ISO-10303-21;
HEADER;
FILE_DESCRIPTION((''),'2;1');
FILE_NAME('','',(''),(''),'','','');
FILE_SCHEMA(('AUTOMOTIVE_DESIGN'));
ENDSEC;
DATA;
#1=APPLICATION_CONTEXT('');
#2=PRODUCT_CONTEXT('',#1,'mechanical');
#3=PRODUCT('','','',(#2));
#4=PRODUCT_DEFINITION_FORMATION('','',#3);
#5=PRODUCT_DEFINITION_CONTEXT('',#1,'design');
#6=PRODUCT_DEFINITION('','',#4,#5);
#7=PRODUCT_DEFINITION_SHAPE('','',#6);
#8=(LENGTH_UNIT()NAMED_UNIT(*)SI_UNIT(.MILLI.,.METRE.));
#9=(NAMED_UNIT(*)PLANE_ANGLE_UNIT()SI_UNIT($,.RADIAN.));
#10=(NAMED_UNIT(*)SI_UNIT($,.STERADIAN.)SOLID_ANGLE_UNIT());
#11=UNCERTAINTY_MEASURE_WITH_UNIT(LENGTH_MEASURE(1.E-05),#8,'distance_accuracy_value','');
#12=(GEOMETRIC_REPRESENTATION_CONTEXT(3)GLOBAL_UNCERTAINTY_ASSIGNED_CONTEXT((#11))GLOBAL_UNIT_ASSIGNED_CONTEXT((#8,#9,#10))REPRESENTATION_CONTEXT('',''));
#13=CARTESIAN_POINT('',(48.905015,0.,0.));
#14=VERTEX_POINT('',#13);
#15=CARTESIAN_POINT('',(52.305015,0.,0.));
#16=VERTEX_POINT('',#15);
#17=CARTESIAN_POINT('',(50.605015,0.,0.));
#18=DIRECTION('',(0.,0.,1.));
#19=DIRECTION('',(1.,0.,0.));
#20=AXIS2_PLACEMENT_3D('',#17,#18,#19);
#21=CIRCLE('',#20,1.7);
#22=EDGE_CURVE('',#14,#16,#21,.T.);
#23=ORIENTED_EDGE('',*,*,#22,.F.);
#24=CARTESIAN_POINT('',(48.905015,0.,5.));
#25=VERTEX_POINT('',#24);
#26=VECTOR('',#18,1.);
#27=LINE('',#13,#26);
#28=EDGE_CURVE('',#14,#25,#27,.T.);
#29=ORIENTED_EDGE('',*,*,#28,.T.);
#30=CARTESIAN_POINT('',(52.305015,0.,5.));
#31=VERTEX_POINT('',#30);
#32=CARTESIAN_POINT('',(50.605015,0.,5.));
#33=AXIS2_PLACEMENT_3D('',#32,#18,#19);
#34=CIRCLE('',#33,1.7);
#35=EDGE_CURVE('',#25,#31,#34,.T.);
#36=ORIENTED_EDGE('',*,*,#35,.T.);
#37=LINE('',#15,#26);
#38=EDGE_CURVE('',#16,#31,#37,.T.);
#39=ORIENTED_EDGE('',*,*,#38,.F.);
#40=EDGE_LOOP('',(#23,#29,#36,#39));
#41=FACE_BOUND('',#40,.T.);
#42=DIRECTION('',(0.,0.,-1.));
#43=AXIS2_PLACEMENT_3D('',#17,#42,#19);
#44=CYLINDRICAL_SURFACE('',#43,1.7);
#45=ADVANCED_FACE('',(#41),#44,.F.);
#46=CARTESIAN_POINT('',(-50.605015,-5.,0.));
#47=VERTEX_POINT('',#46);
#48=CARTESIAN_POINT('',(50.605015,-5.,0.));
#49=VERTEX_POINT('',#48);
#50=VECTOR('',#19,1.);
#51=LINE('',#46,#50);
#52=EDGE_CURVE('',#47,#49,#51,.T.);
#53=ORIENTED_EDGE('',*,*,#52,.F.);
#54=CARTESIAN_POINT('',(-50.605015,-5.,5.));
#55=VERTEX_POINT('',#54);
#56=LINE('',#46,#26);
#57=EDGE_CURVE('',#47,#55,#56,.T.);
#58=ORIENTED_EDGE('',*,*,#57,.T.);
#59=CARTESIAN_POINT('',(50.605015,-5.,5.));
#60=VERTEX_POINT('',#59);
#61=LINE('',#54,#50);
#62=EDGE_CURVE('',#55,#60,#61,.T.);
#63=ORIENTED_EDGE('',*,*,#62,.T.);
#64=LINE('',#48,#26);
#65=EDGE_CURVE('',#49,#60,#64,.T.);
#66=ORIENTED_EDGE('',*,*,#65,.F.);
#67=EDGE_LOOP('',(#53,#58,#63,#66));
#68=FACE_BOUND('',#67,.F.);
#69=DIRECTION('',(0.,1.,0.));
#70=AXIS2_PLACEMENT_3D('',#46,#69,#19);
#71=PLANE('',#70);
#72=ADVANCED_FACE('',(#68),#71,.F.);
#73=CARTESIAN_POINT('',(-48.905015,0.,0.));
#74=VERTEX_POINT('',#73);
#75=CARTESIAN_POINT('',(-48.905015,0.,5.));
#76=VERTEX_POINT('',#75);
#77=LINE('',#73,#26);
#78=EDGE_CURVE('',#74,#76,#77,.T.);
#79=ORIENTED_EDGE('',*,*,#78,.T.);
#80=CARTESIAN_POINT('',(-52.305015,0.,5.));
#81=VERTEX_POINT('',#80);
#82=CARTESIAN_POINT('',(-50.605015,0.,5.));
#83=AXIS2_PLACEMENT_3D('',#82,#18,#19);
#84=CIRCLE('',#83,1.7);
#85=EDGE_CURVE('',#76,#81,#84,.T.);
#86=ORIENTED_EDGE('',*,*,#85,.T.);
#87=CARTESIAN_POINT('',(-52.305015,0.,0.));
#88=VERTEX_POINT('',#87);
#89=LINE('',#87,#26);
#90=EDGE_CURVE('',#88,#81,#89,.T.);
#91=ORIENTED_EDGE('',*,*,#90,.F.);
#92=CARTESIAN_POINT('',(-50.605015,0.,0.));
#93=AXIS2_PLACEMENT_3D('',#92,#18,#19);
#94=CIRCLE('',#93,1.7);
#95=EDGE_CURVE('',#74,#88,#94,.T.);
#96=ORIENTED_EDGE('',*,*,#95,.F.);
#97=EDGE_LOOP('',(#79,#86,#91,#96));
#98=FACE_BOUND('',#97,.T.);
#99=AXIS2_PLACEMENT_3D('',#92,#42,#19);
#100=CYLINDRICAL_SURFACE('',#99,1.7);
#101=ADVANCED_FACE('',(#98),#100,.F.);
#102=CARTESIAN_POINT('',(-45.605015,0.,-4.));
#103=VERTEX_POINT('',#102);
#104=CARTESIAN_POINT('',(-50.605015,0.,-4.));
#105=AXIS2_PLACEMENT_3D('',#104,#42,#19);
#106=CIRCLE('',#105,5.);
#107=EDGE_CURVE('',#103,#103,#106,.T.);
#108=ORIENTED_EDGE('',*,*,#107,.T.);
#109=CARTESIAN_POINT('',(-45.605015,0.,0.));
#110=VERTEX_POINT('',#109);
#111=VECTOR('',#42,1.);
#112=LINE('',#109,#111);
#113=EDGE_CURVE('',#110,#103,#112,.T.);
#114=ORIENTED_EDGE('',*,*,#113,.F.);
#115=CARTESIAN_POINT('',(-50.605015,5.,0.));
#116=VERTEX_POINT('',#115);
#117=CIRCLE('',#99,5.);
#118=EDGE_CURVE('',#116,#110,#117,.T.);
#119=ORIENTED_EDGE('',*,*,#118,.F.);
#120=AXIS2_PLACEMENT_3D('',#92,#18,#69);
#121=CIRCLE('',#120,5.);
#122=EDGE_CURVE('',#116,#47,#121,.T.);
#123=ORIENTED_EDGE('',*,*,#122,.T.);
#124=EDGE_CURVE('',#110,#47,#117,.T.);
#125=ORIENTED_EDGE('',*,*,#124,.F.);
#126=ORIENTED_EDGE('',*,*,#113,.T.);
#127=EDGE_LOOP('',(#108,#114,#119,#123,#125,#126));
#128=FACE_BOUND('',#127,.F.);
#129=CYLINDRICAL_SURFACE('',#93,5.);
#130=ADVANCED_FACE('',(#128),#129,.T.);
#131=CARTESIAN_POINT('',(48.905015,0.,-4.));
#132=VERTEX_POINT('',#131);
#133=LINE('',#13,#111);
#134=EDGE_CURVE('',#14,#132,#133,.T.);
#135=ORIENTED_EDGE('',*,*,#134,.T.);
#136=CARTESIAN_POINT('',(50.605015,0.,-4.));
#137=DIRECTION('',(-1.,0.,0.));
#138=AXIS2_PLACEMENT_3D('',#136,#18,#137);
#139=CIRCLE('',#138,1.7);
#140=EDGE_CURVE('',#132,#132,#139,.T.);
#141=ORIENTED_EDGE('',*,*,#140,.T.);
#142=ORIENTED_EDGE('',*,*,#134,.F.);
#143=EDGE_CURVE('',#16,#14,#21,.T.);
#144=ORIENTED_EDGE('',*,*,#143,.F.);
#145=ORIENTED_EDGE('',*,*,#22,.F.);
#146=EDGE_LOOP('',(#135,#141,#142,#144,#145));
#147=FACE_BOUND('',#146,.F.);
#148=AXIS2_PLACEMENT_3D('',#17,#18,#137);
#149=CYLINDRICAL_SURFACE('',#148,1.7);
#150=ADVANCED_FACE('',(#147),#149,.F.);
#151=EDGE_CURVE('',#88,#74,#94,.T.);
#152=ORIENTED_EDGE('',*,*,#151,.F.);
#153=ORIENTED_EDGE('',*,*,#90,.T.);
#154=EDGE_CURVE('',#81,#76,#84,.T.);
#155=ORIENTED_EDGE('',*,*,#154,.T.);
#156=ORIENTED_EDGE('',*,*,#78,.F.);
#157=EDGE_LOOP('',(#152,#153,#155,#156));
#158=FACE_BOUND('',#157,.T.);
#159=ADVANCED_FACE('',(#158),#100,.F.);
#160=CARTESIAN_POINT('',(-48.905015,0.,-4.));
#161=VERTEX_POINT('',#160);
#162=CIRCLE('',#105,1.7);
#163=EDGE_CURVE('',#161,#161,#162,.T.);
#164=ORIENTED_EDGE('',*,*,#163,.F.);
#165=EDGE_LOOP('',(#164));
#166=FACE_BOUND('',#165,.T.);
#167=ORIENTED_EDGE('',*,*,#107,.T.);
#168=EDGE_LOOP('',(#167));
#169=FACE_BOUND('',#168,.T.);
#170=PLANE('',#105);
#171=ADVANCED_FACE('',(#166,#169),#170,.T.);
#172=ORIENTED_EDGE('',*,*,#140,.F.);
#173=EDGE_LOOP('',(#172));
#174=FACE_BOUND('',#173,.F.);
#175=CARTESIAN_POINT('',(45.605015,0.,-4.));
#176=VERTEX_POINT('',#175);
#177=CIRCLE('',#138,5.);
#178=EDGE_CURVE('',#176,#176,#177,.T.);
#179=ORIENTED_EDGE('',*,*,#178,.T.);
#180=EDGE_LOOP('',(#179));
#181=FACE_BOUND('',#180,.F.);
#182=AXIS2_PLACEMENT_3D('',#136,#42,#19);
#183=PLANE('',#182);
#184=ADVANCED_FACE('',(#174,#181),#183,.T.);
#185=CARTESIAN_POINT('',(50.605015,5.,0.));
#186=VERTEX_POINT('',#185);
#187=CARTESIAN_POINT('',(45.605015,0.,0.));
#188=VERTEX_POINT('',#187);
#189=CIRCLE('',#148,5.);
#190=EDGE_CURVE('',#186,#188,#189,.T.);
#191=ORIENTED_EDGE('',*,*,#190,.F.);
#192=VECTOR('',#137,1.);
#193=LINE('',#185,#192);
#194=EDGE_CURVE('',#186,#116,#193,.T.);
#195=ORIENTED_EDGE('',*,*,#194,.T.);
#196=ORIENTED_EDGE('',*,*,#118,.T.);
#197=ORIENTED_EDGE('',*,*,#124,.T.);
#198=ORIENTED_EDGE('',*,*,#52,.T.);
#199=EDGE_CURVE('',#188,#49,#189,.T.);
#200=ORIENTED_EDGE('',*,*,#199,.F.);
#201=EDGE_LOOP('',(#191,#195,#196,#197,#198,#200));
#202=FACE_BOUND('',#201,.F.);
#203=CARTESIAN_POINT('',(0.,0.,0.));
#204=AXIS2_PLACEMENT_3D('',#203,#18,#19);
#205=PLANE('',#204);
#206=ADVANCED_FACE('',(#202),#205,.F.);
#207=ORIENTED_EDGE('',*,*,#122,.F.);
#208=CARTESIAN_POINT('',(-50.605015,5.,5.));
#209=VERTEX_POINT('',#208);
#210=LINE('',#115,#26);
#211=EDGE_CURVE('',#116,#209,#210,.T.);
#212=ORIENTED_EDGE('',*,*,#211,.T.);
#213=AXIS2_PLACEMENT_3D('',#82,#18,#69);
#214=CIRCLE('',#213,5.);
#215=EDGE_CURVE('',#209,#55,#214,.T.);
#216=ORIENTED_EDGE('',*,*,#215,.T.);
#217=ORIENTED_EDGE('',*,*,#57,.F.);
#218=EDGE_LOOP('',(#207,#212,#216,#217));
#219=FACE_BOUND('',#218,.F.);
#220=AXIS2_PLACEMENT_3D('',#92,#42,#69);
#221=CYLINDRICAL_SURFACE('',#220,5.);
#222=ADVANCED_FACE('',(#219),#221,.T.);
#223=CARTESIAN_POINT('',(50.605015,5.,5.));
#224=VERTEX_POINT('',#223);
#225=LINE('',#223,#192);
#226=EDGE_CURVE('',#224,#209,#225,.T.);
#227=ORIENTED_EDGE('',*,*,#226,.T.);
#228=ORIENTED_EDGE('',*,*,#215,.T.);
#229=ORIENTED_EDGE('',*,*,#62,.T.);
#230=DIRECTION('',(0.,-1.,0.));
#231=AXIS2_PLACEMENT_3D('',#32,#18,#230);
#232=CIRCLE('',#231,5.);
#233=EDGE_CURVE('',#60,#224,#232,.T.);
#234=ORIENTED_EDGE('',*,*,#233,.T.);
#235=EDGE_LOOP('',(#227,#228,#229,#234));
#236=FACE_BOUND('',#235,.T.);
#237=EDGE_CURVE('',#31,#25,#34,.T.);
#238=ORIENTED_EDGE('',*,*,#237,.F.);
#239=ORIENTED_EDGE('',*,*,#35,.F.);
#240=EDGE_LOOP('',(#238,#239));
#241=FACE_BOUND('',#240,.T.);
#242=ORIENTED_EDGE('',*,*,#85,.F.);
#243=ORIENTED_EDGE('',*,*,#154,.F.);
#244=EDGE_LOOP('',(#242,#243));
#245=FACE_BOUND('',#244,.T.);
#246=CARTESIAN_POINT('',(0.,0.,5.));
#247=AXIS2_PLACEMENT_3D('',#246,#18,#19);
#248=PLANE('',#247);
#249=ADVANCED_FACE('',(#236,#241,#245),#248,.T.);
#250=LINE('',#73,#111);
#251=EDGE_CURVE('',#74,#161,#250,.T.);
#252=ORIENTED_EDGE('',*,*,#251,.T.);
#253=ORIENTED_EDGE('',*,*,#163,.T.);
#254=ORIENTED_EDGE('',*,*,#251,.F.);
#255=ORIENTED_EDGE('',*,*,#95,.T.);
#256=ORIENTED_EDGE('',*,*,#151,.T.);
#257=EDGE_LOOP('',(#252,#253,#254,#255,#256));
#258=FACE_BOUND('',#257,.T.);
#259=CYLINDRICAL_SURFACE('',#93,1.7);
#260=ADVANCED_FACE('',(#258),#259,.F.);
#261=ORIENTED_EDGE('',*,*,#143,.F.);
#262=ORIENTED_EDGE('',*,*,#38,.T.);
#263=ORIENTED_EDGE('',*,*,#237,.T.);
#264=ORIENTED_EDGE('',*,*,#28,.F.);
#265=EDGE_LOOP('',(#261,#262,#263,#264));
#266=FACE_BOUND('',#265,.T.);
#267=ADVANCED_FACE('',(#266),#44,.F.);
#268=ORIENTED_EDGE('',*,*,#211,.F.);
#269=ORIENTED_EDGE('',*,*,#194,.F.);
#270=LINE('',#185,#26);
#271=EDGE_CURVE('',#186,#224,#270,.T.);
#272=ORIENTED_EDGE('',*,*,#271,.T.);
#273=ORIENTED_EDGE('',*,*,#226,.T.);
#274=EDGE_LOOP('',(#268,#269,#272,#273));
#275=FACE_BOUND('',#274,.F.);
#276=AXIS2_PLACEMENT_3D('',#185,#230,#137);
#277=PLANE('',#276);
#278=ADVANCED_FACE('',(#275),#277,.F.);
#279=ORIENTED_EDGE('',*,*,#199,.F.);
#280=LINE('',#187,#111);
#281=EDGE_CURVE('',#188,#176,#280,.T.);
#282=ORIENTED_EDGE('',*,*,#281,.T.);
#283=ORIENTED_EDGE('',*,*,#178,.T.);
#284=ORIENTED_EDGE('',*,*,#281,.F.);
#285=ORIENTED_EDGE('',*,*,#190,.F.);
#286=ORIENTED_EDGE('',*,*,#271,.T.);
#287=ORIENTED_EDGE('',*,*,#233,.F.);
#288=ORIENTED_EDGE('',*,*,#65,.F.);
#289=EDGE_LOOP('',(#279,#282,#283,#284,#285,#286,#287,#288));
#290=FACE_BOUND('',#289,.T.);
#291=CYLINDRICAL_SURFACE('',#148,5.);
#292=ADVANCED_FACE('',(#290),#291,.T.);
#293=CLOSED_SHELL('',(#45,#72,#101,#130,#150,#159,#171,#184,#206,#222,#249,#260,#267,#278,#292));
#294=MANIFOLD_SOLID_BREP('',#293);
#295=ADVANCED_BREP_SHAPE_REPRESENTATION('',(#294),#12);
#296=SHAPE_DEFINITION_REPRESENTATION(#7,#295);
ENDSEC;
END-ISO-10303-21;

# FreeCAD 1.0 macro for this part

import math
import FreeCAD as App
import Part
import Sketcher
from FreeCAD import Vector

doc = App.newDocument("Part")
body = doc.addObject("PartDesign::Body", "Body")

sketch1 = body.newObject("Sketcher::SketchObject", "Sketch")
sketch1.AttachmentSupport = (doc.getObject("XY_Plane"), [""])
sketch1.MapMode = "FlatFace"
sketch1.addGeometry(Part.LineSegment(Vector(-50.6, -5, 0), Vector(50.6, -5, 0)), False)
sketch1.addGeometry(Part.ArcOfCircle(Part.Circle(Vector(50.6, 0, 0), Vector(0, 0, 1), 5), math.radians(-90), math.radians(90)), False)
sketch1.addGeometry(Part.LineSegment(Vector(50.6, 5, 0), Vector(-50.6, 5, 0)), False)
sketch1.addGeometry(Part.ArcOfCircle(Part.Circle(Vector(-50.6, 0, 0), Vector(0, 0, 1), 5), math.radians(90), math.radians(270)), False)
sketch1.addGeometry(Part.Circle(Vector(-50.6, 0, 0), Vector(0, 0, 1), 1.7), False)
sketch1.addGeometry(Part.Circle(Vector(50.6, 0, 0), Vector(0, 0, 1), 1.7), False)
sketch1.addConstraint(Sketcher.Constraint("Tangent", 0, 2, 1, 1))
sketch1.addConstraint(Sketcher.Constraint("Tangent", 1, 2, 2, 1))
sketch1.addConstraint(Sketcher.Constraint("Tangent", 2, 2, 3, 1))
sketch1.addConstraint(Sketcher.Constraint("Tangent", 3, 2, 0, 1))
sketch1.addConstraint(Sketcher.Constraint("Horizontal", 0))
sketch1.addConstraint(Sketcher.Constraint("Horizontal", 2))
sketch1.addConstraint(Sketcher.Constraint("Coincident", 4, 3, 3, 3))
sketch1.addConstraint(Sketcher.Constraint("Coincident", 5, 3, 1, 3))
sketch1.addConstraint(Sketcher.Constraint("Equal", 4, 5))
sketch1.addConstraint(Sketcher.Constraint("Symmetric", 1, 3, 3, 3, -1, 1))
sketch1.addConstraint(Sketcher.Constraint("Radius", 1, 5.0))
sketch1.addConstraint(Sketcher.Constraint("Diameter", 4, 3.4))
sketch1.addConstraint(Sketcher.Constraint("DistanceX", 0, 1, 0, 2, 101.21003))
pad1 = body.newObject("PartDesign::Pad", "Pad")
pad1.Profile = sketch1
pad1.Length = 5

sketch2 = body.newObject("Sketcher::SketchObject", "Sketch001")
sketch2.AttachmentSupport = (doc.getObject("XY_Plane"), [""])
sketch2.MapMode = "FlatFace"
sketch2.addGeometry(Part.Circle(Vector(-50.6, 0, 0), Vector(0, 0, 1), 5), False)
sketch2.addGeometry(Part.Circle(Vector(-50.6, 0, 0), Vector(0, 0, 1), 1.7), False)
sketch2.addConstraint(Sketcher.Constraint("Coincident", 1, 3, 0, 3))
sketch2.addConstraint(Sketcher.Constraint("PointOnObject", 0, 3, -1))
sketch2.addConstraint(Sketcher.Constraint("Diameter", 0, 10.0))
sketch2.addConstraint(Sketcher.Constraint("Diameter", 1, 3.4))
sketch2.addConstraint(Sketcher.Constraint("DistanceX", 0, 3, -1, 1, 50.605015))
pad2 = body.newObject("PartDesign::Pad", "Pad001")
pad2.Profile = sketch2
pad2.Length = 4
pad2.Reversed = True
body2 = doc.addObject("PartDesign::Body", "Body001")
doc.recompute()

body2.BaseFeature = body
doc.recompute()

mirroring = doc.addObject("Part::Mirroring", "Mirroring")
mirroring.Source = body
mirroring.Base = Vector(0, 0, 0)
mirroring.Normal = Vector(1, 0, 0)
body3 = doc.addObject("PartDesign::Body", "Body002")
body3.BaseFeature = mirroring
boolean = body2.newObject("PartDesign::Boolean", "Boolean")
boolean.Type = "Fuse"
boolean.addObjects([body3])
doc.recompute()
mirroring.Visibility = False

doc.recompute()
